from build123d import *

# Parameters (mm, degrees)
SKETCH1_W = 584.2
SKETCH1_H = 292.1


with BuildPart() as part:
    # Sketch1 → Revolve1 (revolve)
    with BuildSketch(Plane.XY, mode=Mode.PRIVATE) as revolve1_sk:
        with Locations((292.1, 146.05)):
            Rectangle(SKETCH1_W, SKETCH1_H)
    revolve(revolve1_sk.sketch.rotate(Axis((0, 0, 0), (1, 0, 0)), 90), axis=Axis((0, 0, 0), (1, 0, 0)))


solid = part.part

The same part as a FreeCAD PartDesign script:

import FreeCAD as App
import Part
import Sketcher
Q = App.Units.Quantity


def add_polygon(sketch, points):
    """Adds a closed chain of lines whose ends are joined by coincident constraints."""
    first, n = sketch.GeometryCount, len(points)
    for a, b in zip(points, points[1:] + points[:1]):
        sketch.addGeometry(Part.LineSegment(App.Vector(*a, 0), App.Vector(*b, 0)), False)
    for i in range(n):
        sketch.addConstraint(Sketcher.Constraint("Coincident", first + i, 2, first + (i + 1) % n, 1))

doc = App.newDocument("Part")
body = doc.addObject("PartDesign::Body", "Body")

# Sketch on XY plane
sketch1 = body.newObject("Sketcher::SketchObject", "Sketch")
sketch1.AttachmentSupport = (doc.getObject("XY_Plane"), [""])
sketch1.MapMode = "FlatFace"
add_polygon(sketch1, [(0, 292), (0, 0), (584, 0), (584, 292)])  # lines 0-3
sketch1.addConstraint(Sketcher.Constraint("Vertical", 0))
sketch1.addConstraint(Sketcher.Constraint("Horizontal", 1))
sketch1.addConstraint(Sketcher.Constraint("Vertical", 2))
sketch1.addConstraint(Sketcher.Constraint("Horizontal", 3))
sketch1.addConstraint(Sketcher.Constraint("Coincident", 0, 2, -1, 1))
sketch1.addConstraint(Sketcher.Constraint("DistanceX", 1, 1, 1, 2, Q("23 in")))
sketch1.addConstraint(Sketcher.Constraint("DistanceY", 0, 2, 0, 1, Q("11.5 in")))
revolution = body.newObject("PartDesign::Revolution", "Revolution")
revolution.Profile = sketch1
revolution.ReferenceAxis = (sketch1, ["H_Axis"])
revolution.Angle = 360

doc.recompute()
